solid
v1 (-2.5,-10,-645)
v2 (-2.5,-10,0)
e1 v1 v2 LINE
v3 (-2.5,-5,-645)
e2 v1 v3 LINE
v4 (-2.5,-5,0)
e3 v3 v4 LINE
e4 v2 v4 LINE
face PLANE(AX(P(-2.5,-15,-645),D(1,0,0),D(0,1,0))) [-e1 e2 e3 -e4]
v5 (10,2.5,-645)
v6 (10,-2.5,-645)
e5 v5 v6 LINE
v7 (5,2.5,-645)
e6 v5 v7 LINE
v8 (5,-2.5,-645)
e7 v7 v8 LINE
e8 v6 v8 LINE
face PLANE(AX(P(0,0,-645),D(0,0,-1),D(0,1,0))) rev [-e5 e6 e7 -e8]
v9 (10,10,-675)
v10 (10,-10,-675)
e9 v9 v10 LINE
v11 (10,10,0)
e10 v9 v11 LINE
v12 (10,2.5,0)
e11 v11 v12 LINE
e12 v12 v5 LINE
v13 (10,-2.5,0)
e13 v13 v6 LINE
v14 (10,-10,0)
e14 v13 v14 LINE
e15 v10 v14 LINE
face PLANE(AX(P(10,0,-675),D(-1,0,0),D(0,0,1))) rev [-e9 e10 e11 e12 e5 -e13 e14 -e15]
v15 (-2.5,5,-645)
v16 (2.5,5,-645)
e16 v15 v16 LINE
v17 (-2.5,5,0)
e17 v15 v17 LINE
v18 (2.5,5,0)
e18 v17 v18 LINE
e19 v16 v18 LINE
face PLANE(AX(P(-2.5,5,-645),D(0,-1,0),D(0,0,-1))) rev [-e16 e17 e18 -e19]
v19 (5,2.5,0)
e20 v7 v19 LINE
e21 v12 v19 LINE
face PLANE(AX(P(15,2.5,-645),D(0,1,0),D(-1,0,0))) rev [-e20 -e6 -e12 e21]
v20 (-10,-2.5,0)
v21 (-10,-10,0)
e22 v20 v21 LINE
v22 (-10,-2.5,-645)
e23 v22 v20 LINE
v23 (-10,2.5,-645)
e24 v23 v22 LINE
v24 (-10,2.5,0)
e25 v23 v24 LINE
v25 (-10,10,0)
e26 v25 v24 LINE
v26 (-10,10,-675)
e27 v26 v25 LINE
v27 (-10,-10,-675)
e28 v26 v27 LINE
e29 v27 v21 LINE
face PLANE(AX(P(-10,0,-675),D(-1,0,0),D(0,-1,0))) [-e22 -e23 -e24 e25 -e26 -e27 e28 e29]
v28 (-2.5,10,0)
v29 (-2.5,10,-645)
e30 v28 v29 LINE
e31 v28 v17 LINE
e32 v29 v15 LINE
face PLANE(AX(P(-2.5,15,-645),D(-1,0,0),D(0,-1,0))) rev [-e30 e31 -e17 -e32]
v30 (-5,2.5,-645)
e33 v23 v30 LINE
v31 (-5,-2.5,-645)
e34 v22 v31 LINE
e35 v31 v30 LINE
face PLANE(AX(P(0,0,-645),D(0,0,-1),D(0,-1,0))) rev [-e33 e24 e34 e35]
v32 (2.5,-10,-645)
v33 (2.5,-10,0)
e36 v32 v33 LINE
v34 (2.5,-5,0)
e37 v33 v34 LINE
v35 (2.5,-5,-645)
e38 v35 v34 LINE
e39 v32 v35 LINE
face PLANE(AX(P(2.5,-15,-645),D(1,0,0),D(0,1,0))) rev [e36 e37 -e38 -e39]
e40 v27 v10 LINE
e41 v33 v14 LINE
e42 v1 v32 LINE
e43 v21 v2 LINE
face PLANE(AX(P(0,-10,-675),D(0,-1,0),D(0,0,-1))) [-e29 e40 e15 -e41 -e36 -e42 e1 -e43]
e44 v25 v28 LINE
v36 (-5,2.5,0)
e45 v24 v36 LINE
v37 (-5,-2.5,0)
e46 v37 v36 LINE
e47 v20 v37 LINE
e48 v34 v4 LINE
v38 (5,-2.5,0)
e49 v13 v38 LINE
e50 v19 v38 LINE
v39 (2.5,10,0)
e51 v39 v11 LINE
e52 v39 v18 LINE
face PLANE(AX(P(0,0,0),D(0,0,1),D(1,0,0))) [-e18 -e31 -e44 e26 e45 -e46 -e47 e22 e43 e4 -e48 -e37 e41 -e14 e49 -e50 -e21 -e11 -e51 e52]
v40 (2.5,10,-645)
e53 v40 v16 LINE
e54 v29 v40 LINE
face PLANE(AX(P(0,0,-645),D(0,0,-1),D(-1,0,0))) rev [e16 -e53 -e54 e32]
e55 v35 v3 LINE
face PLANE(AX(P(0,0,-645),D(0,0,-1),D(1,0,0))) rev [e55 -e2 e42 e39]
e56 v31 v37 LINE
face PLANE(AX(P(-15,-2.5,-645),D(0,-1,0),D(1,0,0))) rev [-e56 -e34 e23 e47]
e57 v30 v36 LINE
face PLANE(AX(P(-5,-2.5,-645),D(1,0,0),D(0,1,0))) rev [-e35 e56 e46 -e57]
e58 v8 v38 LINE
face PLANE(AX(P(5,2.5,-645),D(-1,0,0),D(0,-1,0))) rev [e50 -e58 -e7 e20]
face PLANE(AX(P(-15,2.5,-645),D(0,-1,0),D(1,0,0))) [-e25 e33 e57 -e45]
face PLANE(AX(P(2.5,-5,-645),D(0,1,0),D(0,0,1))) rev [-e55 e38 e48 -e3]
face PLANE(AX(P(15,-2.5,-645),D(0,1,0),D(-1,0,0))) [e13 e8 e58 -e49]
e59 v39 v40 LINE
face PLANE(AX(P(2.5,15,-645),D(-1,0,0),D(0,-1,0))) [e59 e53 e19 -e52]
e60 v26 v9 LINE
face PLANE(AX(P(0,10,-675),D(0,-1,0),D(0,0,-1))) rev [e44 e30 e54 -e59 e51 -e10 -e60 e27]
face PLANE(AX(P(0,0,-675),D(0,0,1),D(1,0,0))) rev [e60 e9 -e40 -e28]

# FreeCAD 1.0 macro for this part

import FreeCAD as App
import Part
import Sketcher


def add_polygon(sketch, points):
    """Adds a closed chain of lines whose ends are joined by coincident constraints."""
    first, n = sketch.GeometryCount, len(points)
    for a, b in zip(points, points[1:] + points[:1]):
        sketch.addGeometry(Part.LineSegment(App.Vector(*a, 0), App.Vector(*b, 0)), False)
    for i in range(n):
        sketch.addConstraint(Sketcher.Constraint("Coincident", first + i, 2, first + (i + 1) % n, 1))

doc = App.newDocument("Part")
body = doc.addObject("PartDesign::Body", "Body")

sketch1 = body.newObject("Sketcher::SketchObject", "Sketch")
sketch1.AttachmentSupport = (doc.getObject("XY_Plane"), [""])
sketch1.MapMode = "FlatFace"
add_polygon(sketch1, [(-10, 10), (-10, -10), (10, -10), (10, 10)])
sketch1.addConstraint(Sketcher.Constraint("Vertical", 0))
sketch1.addConstraint(Sketcher.Constraint("Horizontal", 1))
sketch1.addConstraint(Sketcher.Constraint("Vertical", 2))
sketch1.addConstraint(Sketcher.Constraint("Horizontal", 3))
sketch1.addConstraint(Sketcher.Constraint("Symmetric", 0, 2, 2, 2, -1, 1))
sketch1.addConstraint(Sketcher.Constraint("Equal", 3, 0))
sketch1.addConstraint(Sketcher.Constraint("DistanceX", 1, 1, 1, 2, 20.0))
pad1 = body.newObject("PartDesign::Pad", "Pad")
pad1.Profile = sketch1
pad1.Length = 675
pad1.Reversed = True

sketch2 = body.newObject("Sketcher::SketchObject", "Sketch001")
sketch2.AttachmentSupport = (doc.getObject("XY_Plane"), [""])
sketch2.MapMode = "FlatFace"
add_polygon(sketch2, [(-2, 15), (-2, 5), (2, 5), (2, 15)])
sketch2.addConstraint(Sketcher.Constraint("Vertical", 0))
sketch2.addConstraint(Sketcher.Constraint("Horizontal", 1))
sketch2.addConstraint(Sketcher.Constraint("Vertical", 2))
sketch2.addConstraint(Sketcher.Constraint("Horizontal", 3))
sketch2.addConstraint(Sketcher.Constraint("DistanceX", 1, 1, 1, 2, 5.0))
sketch2.addConstraint(Sketcher.Constraint("DistanceY", 0, 2, 0, 1, 10.0))
sketch2.addConstraint(Sketcher.Constraint("DistanceY", -1, 1, 0, 2, 5.0))
sketch2.addConstraint(Sketcher.Constraint("DistanceX", 0, 2, -1, 1, 2.5))
pocket1 = body.newObject("PartDesign::Pocket", "Pocket")
pocket1.Profile = sketch2
pocket1.Length = 645
doc.recompute()

polarpattern = body.newObject("PartDesign::PolarPattern", "PolarPattern")
polarpattern.Originals = [pocket1]
polarpattern.Axis = (doc.getObject("Z_Axis"), [""])
polarpattern.Angle = 360
polarpattern.Occurrences = 4
body.Tip = polarpattern

doc.recompute()
